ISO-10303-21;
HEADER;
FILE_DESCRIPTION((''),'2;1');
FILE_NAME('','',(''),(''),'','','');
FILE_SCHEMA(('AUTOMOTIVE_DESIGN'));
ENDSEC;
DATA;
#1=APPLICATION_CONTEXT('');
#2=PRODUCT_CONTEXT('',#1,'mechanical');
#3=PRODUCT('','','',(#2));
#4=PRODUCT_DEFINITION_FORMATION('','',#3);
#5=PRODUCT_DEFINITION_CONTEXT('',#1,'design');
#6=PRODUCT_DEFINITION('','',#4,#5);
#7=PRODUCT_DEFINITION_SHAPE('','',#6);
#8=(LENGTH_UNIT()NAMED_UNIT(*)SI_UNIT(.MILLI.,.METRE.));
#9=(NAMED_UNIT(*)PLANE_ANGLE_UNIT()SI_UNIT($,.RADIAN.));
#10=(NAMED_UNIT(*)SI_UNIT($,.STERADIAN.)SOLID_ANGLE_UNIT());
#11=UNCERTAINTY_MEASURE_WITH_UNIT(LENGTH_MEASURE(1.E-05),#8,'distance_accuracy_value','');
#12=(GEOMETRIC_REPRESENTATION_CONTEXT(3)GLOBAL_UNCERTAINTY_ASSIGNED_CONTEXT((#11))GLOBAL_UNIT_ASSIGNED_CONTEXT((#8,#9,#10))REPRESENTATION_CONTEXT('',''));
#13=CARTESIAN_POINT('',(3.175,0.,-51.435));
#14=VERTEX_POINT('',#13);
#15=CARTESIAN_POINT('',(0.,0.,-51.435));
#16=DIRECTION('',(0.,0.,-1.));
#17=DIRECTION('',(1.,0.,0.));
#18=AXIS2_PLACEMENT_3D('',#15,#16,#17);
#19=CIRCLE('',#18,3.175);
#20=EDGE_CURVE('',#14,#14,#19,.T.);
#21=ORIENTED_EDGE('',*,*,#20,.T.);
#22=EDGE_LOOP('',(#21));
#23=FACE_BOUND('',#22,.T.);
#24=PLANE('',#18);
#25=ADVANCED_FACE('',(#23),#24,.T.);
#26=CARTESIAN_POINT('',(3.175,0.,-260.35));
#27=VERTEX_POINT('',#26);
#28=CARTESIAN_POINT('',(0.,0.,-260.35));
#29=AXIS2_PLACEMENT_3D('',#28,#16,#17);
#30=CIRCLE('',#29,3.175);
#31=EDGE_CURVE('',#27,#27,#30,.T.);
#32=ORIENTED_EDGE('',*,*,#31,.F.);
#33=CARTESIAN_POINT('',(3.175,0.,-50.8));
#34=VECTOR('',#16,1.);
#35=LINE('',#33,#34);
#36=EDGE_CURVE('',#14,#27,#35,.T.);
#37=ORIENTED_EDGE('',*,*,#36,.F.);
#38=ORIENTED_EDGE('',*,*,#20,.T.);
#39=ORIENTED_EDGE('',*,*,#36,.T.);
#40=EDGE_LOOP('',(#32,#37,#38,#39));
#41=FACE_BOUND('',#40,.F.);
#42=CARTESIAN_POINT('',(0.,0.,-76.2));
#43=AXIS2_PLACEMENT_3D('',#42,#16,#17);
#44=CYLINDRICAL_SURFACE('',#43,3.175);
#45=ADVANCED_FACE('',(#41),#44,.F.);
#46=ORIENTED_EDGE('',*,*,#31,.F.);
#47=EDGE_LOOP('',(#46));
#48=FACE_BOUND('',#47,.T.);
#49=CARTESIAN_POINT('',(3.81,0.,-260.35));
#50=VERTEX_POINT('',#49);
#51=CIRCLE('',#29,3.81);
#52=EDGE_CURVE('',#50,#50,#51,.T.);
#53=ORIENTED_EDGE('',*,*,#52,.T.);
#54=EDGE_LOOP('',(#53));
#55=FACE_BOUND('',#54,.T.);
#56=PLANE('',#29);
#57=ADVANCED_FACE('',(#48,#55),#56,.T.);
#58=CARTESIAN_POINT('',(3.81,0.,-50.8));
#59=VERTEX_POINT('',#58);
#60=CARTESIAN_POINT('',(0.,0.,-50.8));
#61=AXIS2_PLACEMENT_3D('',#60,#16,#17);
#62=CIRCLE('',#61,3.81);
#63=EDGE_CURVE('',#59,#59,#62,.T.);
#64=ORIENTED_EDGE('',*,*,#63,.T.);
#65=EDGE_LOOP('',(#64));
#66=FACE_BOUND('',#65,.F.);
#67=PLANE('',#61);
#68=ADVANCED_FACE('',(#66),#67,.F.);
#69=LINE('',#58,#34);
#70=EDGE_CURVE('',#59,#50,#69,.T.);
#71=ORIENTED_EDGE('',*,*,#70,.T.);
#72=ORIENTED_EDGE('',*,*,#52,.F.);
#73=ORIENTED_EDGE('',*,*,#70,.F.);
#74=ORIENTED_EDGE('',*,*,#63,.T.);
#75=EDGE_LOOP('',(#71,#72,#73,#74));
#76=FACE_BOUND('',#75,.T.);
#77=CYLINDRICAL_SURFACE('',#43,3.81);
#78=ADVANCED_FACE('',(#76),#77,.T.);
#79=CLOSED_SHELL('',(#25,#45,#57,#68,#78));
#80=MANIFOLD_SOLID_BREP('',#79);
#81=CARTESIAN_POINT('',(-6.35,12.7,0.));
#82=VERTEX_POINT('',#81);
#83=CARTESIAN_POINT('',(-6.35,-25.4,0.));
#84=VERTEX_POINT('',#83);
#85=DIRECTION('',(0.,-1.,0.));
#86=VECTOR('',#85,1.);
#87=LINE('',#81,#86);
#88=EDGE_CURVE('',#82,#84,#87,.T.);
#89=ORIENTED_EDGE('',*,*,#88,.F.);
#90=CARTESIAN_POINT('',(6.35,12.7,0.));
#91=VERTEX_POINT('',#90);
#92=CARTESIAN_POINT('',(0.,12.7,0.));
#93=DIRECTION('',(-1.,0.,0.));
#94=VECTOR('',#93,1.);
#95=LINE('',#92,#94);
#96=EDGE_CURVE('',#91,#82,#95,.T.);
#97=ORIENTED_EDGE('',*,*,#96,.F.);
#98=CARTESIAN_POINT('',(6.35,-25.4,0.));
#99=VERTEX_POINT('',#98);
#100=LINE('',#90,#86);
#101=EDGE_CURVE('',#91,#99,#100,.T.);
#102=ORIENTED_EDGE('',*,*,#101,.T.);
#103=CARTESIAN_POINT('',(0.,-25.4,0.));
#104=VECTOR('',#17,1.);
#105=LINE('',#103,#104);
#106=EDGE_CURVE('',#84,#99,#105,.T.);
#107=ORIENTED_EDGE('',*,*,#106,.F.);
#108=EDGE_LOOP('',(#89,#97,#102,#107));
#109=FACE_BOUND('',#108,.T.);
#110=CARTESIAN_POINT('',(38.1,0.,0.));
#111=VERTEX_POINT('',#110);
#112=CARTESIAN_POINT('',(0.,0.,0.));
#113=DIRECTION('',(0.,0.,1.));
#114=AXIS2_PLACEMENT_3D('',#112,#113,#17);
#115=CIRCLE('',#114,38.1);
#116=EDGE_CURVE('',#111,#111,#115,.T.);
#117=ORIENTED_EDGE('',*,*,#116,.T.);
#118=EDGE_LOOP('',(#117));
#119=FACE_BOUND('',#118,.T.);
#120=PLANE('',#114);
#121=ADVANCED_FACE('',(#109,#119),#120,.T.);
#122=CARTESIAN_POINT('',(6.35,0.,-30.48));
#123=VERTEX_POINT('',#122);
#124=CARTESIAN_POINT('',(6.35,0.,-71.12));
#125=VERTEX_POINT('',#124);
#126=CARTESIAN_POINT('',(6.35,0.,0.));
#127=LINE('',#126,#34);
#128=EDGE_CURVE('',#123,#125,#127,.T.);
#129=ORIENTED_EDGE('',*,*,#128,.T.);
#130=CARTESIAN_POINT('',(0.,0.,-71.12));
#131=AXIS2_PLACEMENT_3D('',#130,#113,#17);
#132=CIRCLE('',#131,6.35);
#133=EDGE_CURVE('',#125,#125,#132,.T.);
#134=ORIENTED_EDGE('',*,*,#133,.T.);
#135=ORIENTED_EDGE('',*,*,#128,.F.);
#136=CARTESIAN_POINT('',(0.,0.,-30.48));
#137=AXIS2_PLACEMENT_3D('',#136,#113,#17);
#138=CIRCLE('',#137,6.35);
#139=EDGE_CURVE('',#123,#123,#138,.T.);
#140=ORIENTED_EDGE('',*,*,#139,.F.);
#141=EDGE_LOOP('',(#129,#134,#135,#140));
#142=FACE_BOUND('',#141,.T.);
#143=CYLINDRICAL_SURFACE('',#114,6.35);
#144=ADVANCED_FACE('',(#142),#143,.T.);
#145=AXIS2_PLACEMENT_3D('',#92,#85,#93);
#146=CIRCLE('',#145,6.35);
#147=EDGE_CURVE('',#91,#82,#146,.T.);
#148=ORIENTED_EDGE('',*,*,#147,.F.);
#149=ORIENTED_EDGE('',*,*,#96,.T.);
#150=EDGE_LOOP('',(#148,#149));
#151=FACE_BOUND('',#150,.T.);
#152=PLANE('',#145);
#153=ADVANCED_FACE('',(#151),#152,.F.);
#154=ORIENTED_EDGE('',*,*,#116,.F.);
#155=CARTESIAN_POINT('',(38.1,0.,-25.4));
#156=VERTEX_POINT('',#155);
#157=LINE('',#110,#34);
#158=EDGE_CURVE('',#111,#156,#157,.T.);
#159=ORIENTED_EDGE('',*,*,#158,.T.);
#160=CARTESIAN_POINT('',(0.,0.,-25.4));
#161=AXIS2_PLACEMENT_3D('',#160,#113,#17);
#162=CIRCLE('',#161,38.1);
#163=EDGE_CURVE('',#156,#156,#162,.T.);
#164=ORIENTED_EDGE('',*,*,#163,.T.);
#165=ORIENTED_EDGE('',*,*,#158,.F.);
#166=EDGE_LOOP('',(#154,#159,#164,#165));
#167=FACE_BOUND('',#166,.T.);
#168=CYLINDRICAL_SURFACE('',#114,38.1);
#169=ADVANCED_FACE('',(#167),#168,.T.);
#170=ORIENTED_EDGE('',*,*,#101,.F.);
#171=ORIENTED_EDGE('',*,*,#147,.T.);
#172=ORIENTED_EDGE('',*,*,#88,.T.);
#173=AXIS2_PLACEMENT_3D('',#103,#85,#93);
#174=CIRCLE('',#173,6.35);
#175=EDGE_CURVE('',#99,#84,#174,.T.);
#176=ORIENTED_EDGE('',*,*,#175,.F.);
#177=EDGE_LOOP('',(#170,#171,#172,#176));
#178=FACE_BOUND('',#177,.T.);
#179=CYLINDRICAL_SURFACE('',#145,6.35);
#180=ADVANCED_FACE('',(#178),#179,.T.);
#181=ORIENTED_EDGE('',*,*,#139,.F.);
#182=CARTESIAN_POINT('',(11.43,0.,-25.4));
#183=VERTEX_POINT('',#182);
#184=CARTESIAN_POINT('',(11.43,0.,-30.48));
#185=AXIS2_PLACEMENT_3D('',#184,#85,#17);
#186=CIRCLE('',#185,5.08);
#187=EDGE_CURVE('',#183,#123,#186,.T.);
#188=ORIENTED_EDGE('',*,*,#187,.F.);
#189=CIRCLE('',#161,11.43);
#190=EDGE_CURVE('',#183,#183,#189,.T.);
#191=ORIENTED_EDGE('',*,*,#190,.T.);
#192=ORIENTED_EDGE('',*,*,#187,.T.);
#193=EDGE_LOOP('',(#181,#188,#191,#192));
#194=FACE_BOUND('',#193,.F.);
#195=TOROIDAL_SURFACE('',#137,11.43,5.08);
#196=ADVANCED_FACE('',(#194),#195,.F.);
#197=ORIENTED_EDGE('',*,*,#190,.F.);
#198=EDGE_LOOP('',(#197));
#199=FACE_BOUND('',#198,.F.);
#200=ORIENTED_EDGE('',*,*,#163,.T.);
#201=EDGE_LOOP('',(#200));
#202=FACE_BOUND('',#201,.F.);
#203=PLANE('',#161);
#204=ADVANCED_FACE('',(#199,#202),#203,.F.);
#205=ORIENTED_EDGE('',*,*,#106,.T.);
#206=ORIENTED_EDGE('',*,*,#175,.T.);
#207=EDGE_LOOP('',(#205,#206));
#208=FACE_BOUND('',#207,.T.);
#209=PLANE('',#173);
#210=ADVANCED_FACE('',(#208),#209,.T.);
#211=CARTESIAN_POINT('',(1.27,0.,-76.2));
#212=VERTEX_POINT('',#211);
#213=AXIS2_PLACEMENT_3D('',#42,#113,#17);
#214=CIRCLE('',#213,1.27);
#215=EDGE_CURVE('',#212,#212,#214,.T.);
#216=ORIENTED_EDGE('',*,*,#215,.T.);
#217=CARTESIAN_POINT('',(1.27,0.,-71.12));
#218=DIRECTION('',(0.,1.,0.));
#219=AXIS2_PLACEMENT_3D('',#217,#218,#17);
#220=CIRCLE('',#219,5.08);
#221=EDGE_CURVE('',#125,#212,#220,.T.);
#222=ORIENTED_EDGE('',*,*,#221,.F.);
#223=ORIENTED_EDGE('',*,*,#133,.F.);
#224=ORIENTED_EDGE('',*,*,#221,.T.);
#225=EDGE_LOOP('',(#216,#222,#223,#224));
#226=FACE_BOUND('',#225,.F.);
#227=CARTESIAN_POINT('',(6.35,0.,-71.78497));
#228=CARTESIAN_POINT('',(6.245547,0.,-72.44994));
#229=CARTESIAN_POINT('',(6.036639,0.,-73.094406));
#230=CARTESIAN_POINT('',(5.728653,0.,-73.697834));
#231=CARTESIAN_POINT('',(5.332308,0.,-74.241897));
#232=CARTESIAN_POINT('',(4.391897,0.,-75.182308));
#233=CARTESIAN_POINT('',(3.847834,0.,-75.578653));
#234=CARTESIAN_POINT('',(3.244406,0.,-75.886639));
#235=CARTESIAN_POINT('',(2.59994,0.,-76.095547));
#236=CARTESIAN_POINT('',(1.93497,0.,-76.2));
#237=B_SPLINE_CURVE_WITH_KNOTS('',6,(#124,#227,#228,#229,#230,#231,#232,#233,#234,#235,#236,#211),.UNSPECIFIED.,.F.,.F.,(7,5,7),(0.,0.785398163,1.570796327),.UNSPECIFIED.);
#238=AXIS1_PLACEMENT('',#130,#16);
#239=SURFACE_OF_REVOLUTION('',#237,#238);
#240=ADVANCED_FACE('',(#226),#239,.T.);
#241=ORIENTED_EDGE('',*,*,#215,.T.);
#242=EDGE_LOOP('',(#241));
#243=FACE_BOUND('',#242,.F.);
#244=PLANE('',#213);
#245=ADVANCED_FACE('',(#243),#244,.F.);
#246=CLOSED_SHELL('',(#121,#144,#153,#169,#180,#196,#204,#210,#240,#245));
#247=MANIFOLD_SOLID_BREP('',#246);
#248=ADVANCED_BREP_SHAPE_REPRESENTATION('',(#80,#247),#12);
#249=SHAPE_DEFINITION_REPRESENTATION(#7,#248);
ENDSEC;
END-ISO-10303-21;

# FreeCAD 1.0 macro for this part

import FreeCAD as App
import Part
import Sketcher
from FreeCAD import Vector
Q = App.Units.Quantity


def edges_at(feature, points):
    """Names of the edges that pass closest to the given points."""
    edges = feature.Shape.Edges
    near = lambda p: min(range(len(edges)), key=lambda i: edges[i].distToShape(Part.Vertex(*p))[0])
    return sorted({f"Edge{near(p) + 1}" for p in points})


def faces_at(feature, points):
    """Names of the faces that lie closest to the given points."""
    faces = feature.Shape.Faces
    near = lambda p: min(range(len(faces)), key=lambda i: faces[i].distToShape(Part.Vertex(*p))[0])
    return sorted({f"Face{near(p) + 1}" for p in points})

doc = App.newDocument("Part")
body = doc.addObject("PartDesign::Body", "Body")

sketch1 = body.newObject("Sketcher::SketchObject", "Sketch")
sketch1.AttachmentSupport = (doc.getObject("XY_Plane"), [""])
sketch1.MapMode = "FlatFace"
sketch1.addGeometry(Part.Circle(Vector(0, 0, 0), Vector(0, 0, 1), 6), False)
sketch1.addConstraint(Sketcher.Constraint("Coincident", 0, 3, -1, 1))
sketch1.addConstraint(Sketcher.Constraint("Diameter", 0, Q("0.5 in")))
pad1 = body.newObject("PartDesign::Pad", "Pad")
pad1.Profile = sketch1
pad1.Length = Q("3 in")
pad1.Reversed = True

sketch2 = body.newObject("Sketcher::SketchObject", "Sketch001")
sketch2.AttachmentSupport = (doc.getObject("XY_Plane"), [""])
sketch2.MapMode = "FlatFace"
sketch2.addGeometry(Part.Circle(Vector(0, 0, 0), Vector(0, 0, 1), 38), False)
sketch2.addConstraint(Sketcher.Constraint("Coincident", 0, 3, -1, 1))
sketch2.addConstraint(Sketcher.Constraint("Diameter", 0, Q("3 in")))
pad2 = body.newObject("PartDesign::Pad", "Pad001")
pad2.Profile = sketch2
pad2.Length = Q("1 in")
pad2.Reversed = True
doc.recompute()

fillet = body.newObject("PartDesign::Fillet", "Fillet")
fillet.Base = (pad2, edges_at(pad2, [(-6.35, 0, -76.2), (-6.35, 0, -25.4), (6.35, 0, -50.8)]))
fillet.Radius = Q("0.2 in")

sketch3 = body.newObject("Sketcher::SketchObject", "Sketch002")
sketch3.AttachmentSupport = (doc.getObject("XY_Plane"), [""])
sketch3.MapMode = "FlatFace"
sketch3.addGeometry(Part.LineSegment(Vector(0, -25, 0), Vector(0, 13, 0)), False)
sketch3.addGeometry(Part.LineSegment(Vector(0, 13, 0), Vector(-6, 13, 0)), False)
sketch3.addGeometry(Part.LineSegment(Vector(-6, 13, 0), Vector(-6, -25, 0)), False)
sketch3.addGeometry(Part.LineSegment(Vector(-6, -25, 0), Vector(0, -25, 0)), False)
sketch3.addConstraint(Sketcher.Constraint("Coincident", 0, 2, 1, 1))
sketch3.addConstraint(Sketcher.Constraint("Coincident", 1, 2, 2, 1))
sketch3.addConstraint(Sketcher.Constraint("Coincident", 2, 2, 3, 1))
sketch3.addConstraint(Sketcher.Constraint("Coincident", 3, 2, 0, 1))
sketch3.addConstraint(Sketcher.Constraint("Vertical", 0))
sketch3.addConstraint(Sketcher.Constraint("Horizontal", 1))
sketch3.addConstraint(Sketcher.Constraint("Vertical", 2))
sketch3.addConstraint(Sketcher.Constraint("Horizontal", 3))
sketch3.addConstraint(Sketcher.Constraint("PointOnObject", 0, 2, -2))
sketch3.addConstraint(Sketcher.Constraint("DistanceY", 0, 1, 0, 2, Q("1.5 in")))
sketch3.addConstraint(Sketcher.Constraint("DistanceY", 2, 2, -1, 1, Q("1 in")))
sketch3.addConstraint(Sketcher.Constraint("DistanceX", 1, 2, 1, 1, Q("0.25 in")))
revolution = body.newObject("PartDesign::Revolution", "Revolution")
revolution.Profile = sketch3
revolution.ReferenceAxis = (sketch3, ["V_Axis"])
revolution.Angle = 360
body2 = doc.addObject("PartDesign::Body", "Body001")

sketch4 = body2.newObject("Sketcher::SketchObject", "Sketch003")
sketch4.AttachmentSupport = (doc.getObject("XY_Plane001"), [""])
sketch4.MapMode = "FlatFace"
sketch4.AttachmentOffset = App.Placement(Vector(0, 0, -3 * 25.4), App.Rotation())
sketch4.addGeometry(Part.Circle(Vector(0, 0, 0), Vector(0, 0, 1), 3.8), False)
sketch4.addConstraint(Sketcher.Constraint("Coincident", 0, 3, -1, 1))
sketch4.addConstraint(Sketcher.Constraint("Diameter", 0, Q("0.3 in")))
pad3 = body2.newObject("PartDesign::Pad", "Pad002")
pad3.Profile = sketch4
pad3.Type = "TwoLengths"
pad3.Length = Q("7.25 in")
pad3.Length2 = Q("1 in")
pad3.Reversed = True
doc.recompute()

thickness = body2.newObject("PartDesign::Thickness", "Thickness")
thickness.Base = (pad3, faces_at(pad3, [(0, 0, -260.35)]))
thickness.Value = Q("0.025 in")
thickness.Reversed = True
thickness.Join = "Arc"
body3 = doc.addObject("PartDesign::Body", "Body002")
doc.recompute()

body.Placement = App.Placement(Vector(0, 0, 0), App.Rotation(Vector(0, 0, 1), 180))
boolean = body3.newObject("PartDesign::Boolean", "Boolean")
boolean.Type = "Fuse"
boolean.addObjects([body])
body4 = doc.addObject("PartDesign::Body", "Body003")
doc.recompute()

body2.Placement = App.Placement(Vector(0, 0, 0), App.Rotation(Vector(0, 0, 1), 180))
boolean2 = body4.newObject("PartDesign::Boolean", "Boolean001")
boolean2.Type = "Fuse"
boolean2.addObjects([body2])

doc.recompute()
